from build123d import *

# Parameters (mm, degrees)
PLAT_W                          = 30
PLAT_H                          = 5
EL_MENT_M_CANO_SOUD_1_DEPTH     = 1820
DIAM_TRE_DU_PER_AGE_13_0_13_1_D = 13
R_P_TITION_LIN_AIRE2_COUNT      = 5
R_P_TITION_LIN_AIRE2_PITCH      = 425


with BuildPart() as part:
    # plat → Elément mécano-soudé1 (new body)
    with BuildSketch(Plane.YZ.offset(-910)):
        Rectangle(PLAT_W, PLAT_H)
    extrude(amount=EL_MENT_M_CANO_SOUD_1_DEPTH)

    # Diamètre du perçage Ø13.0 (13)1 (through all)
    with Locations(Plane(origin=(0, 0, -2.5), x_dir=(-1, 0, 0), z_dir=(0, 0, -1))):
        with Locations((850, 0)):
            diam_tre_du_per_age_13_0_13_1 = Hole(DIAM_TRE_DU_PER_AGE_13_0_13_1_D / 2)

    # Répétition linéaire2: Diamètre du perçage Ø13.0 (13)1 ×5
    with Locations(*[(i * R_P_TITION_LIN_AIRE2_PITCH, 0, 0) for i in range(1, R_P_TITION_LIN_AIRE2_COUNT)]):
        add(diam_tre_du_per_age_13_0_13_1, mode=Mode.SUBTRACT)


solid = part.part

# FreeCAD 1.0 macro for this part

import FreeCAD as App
import Part
import Sketcher

V = App.Vector
Q = App.Units.Quantity

doc = App.newDocument("Part")
params = doc.addObject("Spreadsheet::Sheet", "Params")
for row, (alias, value) in enumerate([
    ("sketch1_width", "30 mm"),
    ("sketch1_height", "5 mm"),
    ("pad1_length", "1820 mm"),
    ("sketch2_diameter", "13 mm"),
    ("hole_diameter", "13 mm"),
    ("linearpattern_pitch", "425 mm"),
], start=1):
    params.set(f"A{row}", alias)
    params.set(f"B{row}", "=" + value)
    params.setAlias(f"B{row}", alias)

body = doc.addObject("PartDesign::Body", "Body")

# Sketch on YZ plane
sketch1 = body.newObject("Sketcher::SketchObject", "Sketch")
sketch1.AttachmentSupport = (doc.getObject("YZ_Plane"), [""])
sketch1.MapMode = "FlatFace"
sketch1.AttachmentOffset = App.Placement(V(0, 0, -910), App.Rotation())
sketch1.addGeometry([
    Part.LineSegment(V(-15, 2.5, 0), V(-15, -2.5, 0)),
    Part.LineSegment(V(-15, -2.5, 0), V(15, -2.5, 0)),
    Part.LineSegment(V(15, -2.5, 0), V(15, 2.5, 0)),
    Part.LineSegment(V(15, 2.5, 0), V(-15, 2.5, 0)),
], False)
sketch1.addConstraint([
    Sketcher.Constraint("Coincident", 0, 2, 1, 1),
    Sketcher.Constraint("Coincident", 1, 2, 2, 1),
    Sketcher.Constraint("Coincident", 2, 2, 3, 1),
    Sketcher.Constraint("Coincident", 3, 2, 0, 1),
    Sketcher.Constraint("Vertical", 0),
    Sketcher.Constraint("Horizontal", 1),
    Sketcher.Constraint("Vertical", 2),
    Sketcher.Constraint("Horizontal", 3),
    Sketcher.Constraint("Symmetric", 0, 2, 2, 2, -1, 1),
    Sketcher.Constraint("DistanceX", 1, 1, 1, 2, Q("30 mm")),
    Sketcher.Constraint("DistanceY", 0, 2, 0, 1, Q("5 mm")),
])
sketch1.setExpression("Constraints[9]", "Params.sketch1_width")
sketch1.setExpression("Constraints[10]", "Params.sketch1_height")
pad1 = body.newObject("PartDesign::Pad", "Pad")
pad1.Profile = sketch1
pad1.setExpression("Length", "Params.pad1_length")

# Sketch on XY plane
sketch2 = body.newObject("Sketcher::SketchObject", "Sketch001")
sketch2.AttachmentSupport = (doc.getObject("XY_Plane"), [""])
sketch2.MapMode = "FlatFace"
sketch2.AttachmentOffset = App.Placement(V(0, 0, -2.5), App.Rotation())
sketch2.addGeometry(Part.Circle(V(-850, 0, 0), V(0, 0, 1), 6.5), False)
sketch2.addConstraint([
    Sketcher.Constraint("PointOnObject", 0, 3, -1),
    Sketcher.Constraint("Diameter", 0, Q("13 mm")),
    Sketcher.Constraint("DistanceX", 0, 3, -1, 1, Q("850 mm")),
])
sketch2.setExpression("Constraints[1]", "Params.sketch2_diameter")
doc.recompute()
hole = body.newObject("PartDesign::Hole", "Hole")
hole.Profile = sketch2
hole.ThreadType = "None"
hole.setExpression("Diameter", "Params.hole_diameter")
hole.DepthType = "ThroughAll"
hole.Reversed = True
doc.recompute()

linearpattern = body.newObject("PartDesign::LinearPattern", "LinearPattern")
linearpattern.Originals = [hole]
linearpattern.Direction = (doc.getObject("X_Axis"), [""])
linearpattern.Mode = "offset"
linearpattern.setExpression("Offset", "Params.linearpattern_pitch")
linearpattern.Occurrences = 5
body.Tip = linearpattern

doc.recompute()
